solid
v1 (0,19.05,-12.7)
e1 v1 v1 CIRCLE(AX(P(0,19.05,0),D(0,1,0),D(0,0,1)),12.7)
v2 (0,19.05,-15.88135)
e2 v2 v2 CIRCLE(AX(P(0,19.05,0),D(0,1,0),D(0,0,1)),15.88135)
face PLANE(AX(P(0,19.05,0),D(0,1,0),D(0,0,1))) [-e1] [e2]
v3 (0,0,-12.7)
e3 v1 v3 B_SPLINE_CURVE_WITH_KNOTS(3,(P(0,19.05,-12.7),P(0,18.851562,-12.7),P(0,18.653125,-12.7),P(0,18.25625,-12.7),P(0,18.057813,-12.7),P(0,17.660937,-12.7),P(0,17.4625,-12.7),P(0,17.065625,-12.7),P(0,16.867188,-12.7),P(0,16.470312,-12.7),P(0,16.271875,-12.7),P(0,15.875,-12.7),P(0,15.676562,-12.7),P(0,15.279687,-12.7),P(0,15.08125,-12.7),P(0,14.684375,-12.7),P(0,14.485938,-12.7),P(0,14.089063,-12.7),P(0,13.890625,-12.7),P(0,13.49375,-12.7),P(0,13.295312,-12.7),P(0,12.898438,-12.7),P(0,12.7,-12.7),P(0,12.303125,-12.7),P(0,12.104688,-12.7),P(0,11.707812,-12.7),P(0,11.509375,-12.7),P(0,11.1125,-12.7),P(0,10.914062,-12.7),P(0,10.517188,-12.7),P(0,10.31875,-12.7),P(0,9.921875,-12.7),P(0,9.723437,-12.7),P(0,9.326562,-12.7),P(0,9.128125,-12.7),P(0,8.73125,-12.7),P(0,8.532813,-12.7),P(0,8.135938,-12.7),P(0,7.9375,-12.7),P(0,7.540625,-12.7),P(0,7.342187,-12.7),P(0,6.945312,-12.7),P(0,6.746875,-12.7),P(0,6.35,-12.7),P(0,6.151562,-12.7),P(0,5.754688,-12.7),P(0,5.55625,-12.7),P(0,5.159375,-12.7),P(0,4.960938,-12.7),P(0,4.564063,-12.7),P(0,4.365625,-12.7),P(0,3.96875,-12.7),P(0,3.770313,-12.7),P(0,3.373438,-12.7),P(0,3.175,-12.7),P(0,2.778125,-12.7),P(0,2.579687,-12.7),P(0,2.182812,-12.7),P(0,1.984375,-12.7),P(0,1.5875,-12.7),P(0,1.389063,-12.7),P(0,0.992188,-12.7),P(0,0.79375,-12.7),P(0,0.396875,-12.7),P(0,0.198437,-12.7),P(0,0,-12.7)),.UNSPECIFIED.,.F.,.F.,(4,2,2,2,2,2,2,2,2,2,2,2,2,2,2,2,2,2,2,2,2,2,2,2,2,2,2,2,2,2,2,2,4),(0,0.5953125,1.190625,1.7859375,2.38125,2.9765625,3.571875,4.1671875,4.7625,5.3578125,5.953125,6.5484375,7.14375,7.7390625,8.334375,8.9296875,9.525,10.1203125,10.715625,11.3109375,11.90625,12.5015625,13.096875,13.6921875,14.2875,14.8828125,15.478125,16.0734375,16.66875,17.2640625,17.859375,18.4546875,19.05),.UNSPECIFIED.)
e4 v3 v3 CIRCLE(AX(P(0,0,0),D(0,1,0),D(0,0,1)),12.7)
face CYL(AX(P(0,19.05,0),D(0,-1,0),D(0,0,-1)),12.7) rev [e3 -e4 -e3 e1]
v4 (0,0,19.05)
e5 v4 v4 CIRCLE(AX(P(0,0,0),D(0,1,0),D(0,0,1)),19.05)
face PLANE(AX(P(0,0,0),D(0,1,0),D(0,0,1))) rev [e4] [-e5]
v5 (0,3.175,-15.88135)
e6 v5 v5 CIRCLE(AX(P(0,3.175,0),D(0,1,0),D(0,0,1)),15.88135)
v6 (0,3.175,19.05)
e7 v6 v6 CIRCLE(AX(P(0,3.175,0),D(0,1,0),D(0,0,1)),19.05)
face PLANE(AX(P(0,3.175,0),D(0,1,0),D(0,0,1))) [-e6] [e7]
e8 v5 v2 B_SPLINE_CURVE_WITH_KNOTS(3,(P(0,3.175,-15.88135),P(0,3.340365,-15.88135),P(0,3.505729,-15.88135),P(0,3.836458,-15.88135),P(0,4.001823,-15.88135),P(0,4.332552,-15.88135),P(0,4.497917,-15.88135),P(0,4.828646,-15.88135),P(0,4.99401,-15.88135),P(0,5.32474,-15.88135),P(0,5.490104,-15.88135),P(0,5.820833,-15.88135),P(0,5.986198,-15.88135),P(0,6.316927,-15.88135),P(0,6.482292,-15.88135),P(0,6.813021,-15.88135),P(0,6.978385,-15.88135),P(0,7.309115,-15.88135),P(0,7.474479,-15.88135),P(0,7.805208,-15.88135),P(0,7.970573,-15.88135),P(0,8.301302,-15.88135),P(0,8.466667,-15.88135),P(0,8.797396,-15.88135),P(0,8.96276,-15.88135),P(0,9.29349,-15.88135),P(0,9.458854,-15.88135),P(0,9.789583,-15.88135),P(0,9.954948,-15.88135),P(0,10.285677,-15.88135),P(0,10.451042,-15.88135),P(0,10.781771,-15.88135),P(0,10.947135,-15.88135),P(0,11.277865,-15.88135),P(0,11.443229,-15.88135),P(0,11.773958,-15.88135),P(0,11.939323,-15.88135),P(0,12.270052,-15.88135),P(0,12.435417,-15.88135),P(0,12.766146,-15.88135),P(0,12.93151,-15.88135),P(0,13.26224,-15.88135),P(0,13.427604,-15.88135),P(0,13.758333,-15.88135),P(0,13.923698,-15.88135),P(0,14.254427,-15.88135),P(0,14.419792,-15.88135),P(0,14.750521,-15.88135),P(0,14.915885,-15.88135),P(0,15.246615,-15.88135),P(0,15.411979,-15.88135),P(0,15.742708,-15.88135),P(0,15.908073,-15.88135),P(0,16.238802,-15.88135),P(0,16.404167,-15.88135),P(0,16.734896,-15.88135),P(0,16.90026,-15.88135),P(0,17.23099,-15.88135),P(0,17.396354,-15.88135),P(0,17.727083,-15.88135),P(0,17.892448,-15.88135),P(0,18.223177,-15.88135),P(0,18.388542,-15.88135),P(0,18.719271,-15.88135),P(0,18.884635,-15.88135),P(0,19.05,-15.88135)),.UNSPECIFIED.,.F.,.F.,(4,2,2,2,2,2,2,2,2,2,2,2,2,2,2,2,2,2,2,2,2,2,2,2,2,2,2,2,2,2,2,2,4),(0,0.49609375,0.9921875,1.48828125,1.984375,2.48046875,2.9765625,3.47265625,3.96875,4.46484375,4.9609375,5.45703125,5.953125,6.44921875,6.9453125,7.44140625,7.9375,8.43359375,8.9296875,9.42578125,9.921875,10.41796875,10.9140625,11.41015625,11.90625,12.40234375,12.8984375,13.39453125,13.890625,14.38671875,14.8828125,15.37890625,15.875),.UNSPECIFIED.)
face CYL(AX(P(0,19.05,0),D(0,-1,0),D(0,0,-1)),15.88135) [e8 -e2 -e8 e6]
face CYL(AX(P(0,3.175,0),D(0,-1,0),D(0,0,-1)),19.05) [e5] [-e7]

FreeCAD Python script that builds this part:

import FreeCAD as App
import Part
import Sketcher

V = App.Vector
Q = App.Units.Quantity

doc = App.newDocument("Part")
body = doc.addObject("PartDesign::Body", "Body")

sketch1 = body.newObject("Sketcher::SketchObject", "Sketch")
sketch1.AttachmentSupport = (doc.getObject("XZ_Plane"), [""])
sketch1.MapMode = "FlatFace"
sketch1.addGeometry([
    Part.Circle(V(0, 0, 0), V(0, 0, 1), 15.88135),
    Part.Circle(V(0, 0, 0), V(0, 0, 1), 12.7),
], False)
sketch1.addConstraint([
    Sketcher.Constraint("Coincident", 0, 3, -1, 1),
    Sketcher.Constraint("Coincident", 1, 3, -1, 1),
    Sketcher.Constraint("Diameter", 1, Q("1 in")),
    Sketcher.Constraint("Diameter", 0, Q("1.2505 in")),
])
pad1 = body.newObject("PartDesign::Pad", "Pad")
pad1.Profile = sketch1
pad1.Length = Q("0.75 in")
pad1.Reversed = True

sketch2 = body.newObject("Sketcher::SketchObject", "Sketch001")
sketch2.AttachmentSupport = (doc.getObject("XZ_Plane"), [""])
sketch2.MapMode = "FlatFace"
sketch2.addGeometry([
    Part.Circle(V(0, 0, 0), V(0, 0, 1), 19.05),
    Part.Circle(V(0, 0, 0), V(0, 0, 1), 15.88135),
], False)
sketch2.addConstraint([
    Sketcher.Constraint("Coincident", 0, 3, -1, 1),
    Sketcher.Constraint("Coincident", 1, 3, -1, 1),
    Sketcher.Constraint("Diameter", 0, Q("1.5 in")),
    Sketcher.Constraint("Diameter", 1, Q("1.2505 in")),
])
pad2 = body.newObject("PartDesign::Pad", "Pad001")
pad2.Profile = sketch2
pad2.Length = Q("0.125 in")
pad2.Reversed = True

doc.recompute()
